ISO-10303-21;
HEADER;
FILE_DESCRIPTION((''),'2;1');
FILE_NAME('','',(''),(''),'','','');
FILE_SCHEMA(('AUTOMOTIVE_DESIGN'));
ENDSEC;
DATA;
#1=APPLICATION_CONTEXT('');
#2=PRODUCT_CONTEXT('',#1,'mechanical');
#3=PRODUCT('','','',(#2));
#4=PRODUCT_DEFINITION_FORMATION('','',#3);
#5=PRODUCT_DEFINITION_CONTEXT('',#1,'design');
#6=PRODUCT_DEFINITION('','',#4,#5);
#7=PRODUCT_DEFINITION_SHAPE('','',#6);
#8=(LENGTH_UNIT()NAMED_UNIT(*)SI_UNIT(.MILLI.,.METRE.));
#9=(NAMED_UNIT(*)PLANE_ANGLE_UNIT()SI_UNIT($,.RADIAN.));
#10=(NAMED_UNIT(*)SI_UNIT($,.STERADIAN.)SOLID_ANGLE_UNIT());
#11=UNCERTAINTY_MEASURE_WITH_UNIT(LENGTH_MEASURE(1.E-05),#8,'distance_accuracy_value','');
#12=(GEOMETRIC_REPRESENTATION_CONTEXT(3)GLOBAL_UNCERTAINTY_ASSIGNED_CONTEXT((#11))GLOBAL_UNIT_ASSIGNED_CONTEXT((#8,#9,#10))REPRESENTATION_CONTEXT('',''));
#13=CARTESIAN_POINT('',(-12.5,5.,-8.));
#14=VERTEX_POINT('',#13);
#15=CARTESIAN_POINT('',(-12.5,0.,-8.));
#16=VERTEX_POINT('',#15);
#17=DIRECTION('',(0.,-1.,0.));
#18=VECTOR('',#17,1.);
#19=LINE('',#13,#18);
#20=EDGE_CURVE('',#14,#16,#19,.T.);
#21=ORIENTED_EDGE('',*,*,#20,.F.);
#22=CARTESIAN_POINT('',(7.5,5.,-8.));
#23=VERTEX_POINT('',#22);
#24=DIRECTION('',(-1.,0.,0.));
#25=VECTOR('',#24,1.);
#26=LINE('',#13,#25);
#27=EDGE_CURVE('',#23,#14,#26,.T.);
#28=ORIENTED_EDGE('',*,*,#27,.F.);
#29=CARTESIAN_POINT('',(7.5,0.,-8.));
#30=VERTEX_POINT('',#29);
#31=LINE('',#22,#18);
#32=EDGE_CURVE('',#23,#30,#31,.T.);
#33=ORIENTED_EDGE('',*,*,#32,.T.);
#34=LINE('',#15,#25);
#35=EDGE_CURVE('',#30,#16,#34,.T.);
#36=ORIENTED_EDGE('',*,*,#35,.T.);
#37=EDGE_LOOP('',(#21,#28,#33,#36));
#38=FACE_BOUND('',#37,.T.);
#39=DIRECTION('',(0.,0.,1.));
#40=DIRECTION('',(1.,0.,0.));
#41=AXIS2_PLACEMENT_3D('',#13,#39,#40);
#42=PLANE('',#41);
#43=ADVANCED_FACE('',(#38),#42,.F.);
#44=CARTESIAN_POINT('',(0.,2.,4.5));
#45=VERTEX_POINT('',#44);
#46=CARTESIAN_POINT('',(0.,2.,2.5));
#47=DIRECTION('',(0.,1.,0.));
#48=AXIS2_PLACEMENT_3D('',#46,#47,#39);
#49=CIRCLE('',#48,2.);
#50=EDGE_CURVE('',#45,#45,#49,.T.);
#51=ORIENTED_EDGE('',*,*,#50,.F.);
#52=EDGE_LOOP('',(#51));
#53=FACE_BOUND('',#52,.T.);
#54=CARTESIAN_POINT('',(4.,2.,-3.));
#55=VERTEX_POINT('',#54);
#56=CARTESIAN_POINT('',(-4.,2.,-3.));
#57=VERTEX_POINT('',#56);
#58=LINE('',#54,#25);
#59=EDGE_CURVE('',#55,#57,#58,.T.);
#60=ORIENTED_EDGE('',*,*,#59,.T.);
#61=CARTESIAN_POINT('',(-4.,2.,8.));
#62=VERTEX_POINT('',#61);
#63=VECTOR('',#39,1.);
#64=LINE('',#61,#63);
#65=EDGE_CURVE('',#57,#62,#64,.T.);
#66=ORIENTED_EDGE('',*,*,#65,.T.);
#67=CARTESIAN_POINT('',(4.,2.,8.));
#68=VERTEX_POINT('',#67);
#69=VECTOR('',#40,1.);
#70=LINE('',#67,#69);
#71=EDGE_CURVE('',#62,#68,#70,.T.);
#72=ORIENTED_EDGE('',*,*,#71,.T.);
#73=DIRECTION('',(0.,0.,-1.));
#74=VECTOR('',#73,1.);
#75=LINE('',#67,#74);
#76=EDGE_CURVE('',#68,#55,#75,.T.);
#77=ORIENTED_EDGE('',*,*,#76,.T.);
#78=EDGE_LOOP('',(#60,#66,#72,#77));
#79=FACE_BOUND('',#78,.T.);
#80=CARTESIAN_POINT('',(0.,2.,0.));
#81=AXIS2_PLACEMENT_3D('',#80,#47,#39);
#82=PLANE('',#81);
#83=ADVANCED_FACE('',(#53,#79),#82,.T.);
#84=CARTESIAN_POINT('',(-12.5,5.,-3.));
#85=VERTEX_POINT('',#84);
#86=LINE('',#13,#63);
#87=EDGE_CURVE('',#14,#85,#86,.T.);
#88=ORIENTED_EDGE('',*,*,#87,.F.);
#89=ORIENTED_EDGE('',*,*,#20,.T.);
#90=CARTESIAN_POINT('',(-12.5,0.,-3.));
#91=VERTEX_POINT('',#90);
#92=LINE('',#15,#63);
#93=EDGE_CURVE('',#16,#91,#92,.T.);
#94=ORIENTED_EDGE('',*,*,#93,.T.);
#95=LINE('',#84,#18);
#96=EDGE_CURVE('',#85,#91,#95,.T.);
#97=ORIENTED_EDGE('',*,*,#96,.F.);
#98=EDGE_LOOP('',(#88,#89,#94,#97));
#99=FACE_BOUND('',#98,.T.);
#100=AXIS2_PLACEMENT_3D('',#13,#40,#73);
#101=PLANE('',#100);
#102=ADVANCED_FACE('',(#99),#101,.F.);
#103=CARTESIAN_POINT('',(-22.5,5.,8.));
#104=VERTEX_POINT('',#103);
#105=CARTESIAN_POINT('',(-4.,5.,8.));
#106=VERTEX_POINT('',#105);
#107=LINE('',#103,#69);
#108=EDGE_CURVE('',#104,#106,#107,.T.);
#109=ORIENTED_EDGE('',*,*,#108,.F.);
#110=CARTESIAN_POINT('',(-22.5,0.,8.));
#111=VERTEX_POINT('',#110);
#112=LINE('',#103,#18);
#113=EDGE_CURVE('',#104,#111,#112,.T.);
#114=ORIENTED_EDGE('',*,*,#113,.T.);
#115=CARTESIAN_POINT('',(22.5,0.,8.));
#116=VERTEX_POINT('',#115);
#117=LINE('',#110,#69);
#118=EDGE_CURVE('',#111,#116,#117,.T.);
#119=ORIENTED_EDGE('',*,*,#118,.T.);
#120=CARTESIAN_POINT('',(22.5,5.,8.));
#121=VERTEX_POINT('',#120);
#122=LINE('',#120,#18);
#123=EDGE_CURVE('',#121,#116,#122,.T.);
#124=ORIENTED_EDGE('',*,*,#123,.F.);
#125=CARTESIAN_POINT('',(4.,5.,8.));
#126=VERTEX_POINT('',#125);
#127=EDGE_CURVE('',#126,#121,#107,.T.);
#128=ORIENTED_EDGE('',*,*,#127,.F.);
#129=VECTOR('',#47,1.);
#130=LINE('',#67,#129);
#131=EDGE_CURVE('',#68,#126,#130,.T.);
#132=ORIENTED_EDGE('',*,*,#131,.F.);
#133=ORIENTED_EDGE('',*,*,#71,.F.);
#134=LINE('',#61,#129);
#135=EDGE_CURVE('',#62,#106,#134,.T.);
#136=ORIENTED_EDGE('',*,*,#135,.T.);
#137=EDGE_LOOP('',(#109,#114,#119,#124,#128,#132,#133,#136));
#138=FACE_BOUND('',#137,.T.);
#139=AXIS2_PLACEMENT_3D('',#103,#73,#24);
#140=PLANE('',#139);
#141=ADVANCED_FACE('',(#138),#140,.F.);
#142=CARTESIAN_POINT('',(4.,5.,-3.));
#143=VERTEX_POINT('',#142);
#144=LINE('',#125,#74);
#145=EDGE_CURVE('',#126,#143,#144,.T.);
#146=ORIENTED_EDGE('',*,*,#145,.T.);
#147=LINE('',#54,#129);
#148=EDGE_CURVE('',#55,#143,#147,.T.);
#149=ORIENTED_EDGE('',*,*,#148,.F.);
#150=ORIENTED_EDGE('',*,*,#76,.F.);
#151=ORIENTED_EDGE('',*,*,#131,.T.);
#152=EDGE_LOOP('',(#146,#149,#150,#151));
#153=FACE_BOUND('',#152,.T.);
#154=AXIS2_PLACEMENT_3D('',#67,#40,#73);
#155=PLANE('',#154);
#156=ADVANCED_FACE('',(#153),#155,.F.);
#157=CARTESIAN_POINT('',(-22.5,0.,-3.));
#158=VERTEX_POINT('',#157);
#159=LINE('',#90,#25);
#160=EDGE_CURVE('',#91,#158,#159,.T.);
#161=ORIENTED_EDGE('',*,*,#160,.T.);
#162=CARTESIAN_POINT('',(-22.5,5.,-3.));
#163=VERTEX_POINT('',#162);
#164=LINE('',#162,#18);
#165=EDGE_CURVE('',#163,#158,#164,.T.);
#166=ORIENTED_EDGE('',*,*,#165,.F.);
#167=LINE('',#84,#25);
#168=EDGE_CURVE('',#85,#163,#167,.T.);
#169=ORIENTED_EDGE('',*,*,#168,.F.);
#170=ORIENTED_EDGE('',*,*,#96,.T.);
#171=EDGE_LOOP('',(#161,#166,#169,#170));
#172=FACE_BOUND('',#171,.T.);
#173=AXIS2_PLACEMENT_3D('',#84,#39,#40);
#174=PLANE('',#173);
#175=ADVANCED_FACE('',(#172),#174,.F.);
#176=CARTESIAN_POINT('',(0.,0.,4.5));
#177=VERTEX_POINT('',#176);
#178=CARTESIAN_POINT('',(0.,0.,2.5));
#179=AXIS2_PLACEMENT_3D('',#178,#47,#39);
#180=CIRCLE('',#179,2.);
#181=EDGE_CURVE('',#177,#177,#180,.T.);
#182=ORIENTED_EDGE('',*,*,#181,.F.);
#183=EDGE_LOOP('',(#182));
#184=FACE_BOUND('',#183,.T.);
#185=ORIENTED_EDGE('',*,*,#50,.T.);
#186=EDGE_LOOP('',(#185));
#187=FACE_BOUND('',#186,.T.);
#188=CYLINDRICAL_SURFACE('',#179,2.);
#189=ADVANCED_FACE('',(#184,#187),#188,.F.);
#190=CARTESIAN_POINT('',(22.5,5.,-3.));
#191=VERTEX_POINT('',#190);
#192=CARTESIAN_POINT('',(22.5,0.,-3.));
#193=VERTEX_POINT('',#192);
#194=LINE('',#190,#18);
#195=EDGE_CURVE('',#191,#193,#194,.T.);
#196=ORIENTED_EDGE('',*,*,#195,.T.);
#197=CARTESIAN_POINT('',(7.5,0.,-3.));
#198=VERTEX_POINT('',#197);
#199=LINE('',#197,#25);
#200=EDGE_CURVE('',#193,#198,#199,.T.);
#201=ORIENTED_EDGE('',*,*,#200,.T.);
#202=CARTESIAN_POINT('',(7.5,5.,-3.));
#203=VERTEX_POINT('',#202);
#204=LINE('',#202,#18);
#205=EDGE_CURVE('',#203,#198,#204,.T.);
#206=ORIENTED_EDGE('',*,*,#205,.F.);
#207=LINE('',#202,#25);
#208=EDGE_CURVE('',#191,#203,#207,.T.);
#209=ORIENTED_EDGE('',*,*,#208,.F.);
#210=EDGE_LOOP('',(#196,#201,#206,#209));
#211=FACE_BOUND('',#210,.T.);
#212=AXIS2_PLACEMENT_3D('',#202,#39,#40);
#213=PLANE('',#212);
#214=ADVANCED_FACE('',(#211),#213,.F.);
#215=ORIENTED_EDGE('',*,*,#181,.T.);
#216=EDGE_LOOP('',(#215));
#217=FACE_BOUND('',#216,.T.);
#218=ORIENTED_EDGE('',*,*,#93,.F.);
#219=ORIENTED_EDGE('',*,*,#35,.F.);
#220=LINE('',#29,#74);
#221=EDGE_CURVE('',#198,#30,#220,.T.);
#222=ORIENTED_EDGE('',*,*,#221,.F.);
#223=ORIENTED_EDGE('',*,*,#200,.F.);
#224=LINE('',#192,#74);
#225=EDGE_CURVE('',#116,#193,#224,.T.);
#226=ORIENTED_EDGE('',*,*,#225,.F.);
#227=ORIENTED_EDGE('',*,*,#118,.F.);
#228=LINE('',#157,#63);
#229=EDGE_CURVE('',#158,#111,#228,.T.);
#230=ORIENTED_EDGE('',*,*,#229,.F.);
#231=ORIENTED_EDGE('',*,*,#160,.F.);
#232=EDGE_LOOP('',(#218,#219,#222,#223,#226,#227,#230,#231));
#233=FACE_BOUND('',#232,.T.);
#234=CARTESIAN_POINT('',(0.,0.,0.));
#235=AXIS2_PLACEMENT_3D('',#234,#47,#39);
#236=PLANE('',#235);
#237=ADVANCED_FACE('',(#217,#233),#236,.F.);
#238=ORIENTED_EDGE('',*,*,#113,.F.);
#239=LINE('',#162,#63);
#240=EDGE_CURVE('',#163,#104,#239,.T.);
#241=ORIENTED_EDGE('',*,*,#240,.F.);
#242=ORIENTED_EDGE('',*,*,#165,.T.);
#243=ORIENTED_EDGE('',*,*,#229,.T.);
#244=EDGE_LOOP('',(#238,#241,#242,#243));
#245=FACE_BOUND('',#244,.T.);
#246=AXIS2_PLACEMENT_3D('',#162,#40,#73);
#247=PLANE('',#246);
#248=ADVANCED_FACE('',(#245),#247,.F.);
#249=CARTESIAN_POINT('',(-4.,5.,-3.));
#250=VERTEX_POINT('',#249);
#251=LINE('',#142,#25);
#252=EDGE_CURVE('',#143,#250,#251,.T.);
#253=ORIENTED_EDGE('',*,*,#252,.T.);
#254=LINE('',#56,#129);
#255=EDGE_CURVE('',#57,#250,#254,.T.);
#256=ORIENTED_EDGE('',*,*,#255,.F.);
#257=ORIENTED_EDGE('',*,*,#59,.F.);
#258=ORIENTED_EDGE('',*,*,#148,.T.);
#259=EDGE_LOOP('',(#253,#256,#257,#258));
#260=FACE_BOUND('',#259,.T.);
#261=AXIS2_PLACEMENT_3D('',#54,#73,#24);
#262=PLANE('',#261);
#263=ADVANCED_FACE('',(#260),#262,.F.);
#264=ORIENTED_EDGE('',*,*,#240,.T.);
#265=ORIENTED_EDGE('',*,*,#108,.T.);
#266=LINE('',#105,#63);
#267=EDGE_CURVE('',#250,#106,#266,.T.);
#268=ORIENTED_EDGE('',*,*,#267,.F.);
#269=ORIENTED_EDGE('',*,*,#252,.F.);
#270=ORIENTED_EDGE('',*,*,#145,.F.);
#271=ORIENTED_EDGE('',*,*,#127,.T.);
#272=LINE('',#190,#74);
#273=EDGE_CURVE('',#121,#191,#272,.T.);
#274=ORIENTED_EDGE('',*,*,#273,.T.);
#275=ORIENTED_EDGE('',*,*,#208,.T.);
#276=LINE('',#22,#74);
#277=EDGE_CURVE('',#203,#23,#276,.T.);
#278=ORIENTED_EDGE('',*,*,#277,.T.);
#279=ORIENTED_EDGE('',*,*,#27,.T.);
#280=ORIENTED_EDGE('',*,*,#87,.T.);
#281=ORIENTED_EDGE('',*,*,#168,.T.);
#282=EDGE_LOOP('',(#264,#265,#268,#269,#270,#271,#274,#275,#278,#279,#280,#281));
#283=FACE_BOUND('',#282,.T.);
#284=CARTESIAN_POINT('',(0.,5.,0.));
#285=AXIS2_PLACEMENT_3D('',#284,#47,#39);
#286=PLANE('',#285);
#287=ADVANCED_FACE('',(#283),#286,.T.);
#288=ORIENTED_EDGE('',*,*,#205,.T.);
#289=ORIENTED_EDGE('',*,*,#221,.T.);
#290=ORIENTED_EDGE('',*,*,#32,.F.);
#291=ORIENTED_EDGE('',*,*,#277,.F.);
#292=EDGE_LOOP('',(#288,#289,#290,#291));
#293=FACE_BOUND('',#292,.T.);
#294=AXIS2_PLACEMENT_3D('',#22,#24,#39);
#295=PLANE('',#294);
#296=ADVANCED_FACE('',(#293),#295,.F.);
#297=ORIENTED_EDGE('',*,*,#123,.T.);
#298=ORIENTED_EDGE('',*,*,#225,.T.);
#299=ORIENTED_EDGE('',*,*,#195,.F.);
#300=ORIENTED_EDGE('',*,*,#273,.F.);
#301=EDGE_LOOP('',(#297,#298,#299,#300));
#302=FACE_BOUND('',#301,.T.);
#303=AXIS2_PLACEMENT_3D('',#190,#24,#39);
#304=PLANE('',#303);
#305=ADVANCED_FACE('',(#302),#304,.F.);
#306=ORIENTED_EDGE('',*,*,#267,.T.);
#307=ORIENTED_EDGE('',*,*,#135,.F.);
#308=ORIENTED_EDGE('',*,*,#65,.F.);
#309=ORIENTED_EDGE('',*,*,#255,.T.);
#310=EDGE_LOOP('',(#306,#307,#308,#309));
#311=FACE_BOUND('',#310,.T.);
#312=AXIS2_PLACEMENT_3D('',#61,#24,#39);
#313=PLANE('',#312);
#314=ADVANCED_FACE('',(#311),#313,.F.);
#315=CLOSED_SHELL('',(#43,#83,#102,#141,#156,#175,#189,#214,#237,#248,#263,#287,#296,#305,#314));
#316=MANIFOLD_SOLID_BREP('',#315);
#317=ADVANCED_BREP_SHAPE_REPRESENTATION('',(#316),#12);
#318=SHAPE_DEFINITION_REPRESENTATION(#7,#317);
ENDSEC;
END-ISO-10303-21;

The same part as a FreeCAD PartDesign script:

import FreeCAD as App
import Part
import Sketcher

V = App.Vector
Q = App.Units.Quantity


def add_polygon(sketch, points):
    """Adds a closed chain of lines whose ends are joined by coincident constraints."""
    first, n = sketch.GeometryCount, len(points)
    for a, b in zip(points, points[1:] + points[:1]):
        sketch.addGeometry(Part.LineSegment(App.Vector(*a, 0), App.Vector(*b, 0)), False)
    for i in range(n):
        sketch.addConstraint(Sketcher.Constraint("Coincident", first + i, 2, first + (i + 1) % n, 1))

doc = App.newDocument("Part")
body = doc.addObject("PartDesign::Body", "Body")

# Sketch on XZ plane
sketch1 = body.newObject("Sketcher::SketchObject", "Sketch")
sketch1.AttachmentSupport = (doc.getObject("XZ_Plane"), [""])
sketch1.MapMode = "FlatFace"
add_polygon(sketch1, [(8, -3), (8, -8), (-12, -8), (-12, -3), (-22, -3), (-22, 8), (22, 8), (22, -3)])  # lines 0-7
sketch1.addConstraint([
    Sketcher.Constraint("Vertical", 0),
    Sketcher.Constraint("Horizontal", 1),
    Sketcher.Constraint("Vertical", 2),
    Sketcher.Constraint("Horizontal", 3),
    Sketcher.Constraint("Vertical", 4),
    Sketcher.Constraint("Horizontal", 5),
    Sketcher.Constraint("Vertical", 6),
    Sketcher.Constraint("Horizontal", 7),
    Sketcher.Constraint("Symmetric", 3, 2, 6, 2, -2),
    Sketcher.Constraint("DistanceX", 1, 2, 1, 1, Q("20 mm")),
    Sketcher.Constraint("DistanceX", 3, 2, 3, 1, Q("10 mm")),
    Sketcher.Constraint("DistanceX", 5, 1, 5, 2, Q("45 mm")),
    Sketcher.Constraint("DistanceY", 0, 2, 0, 1, Q("5 mm")),
    Sketcher.Constraint("DistanceY", 4, 1, 4, 2, Q("11 mm")),
    Sketcher.Constraint("DistanceY", 0, 2, -1, 1, Q("8 mm")),
])
pad1 = body.newObject("PartDesign::Pad", "Pad")
pad1.Profile = sketch1
pad1.Length = 5
pad1.Reversed = True

# Sketch on XZ plane
sketch2 = body.newObject("Sketcher::SketchObject", "Sketch001")
sketch2.AttachmentSupport = (doc.getObject("XZ_Plane"), [""])
sketch2.MapMode = "FlatFace"
sketch2.AttachmentOffset = App.Placement(V(0, 0, -5), App.Rotation())
add_polygon(sketch2, [(-4, -3), (-4, 8), (4, 8), (4, -3)])  # lines 0-3
sketch2.addConstraint([
    Sketcher.Constraint("Vertical", 0),
    Sketcher.Constraint("Horizontal", 1),
    Sketcher.Constraint("Vertical", 2),
    Sketcher.Constraint("Horizontal", 3),
    Sketcher.Constraint("DistanceX", 1, 1, 1, 2, Q("8 mm")),
    Sketcher.Constraint("DistanceY", 0, 1, 0, 2, Q("11 mm")),
    Sketcher.Constraint("DistanceX", 0, 2, -1, 1, Q("4 mm")),
    Sketcher.Constraint("DistanceY", -1, 1, 0, 2, Q("8 mm")),
])
pocket1 = body.newObject("PartDesign::Pocket", "Pocket")
pocket1.Profile = sketch2
pocket1.Length = 3
pocket1.Reversed = True

# Sketch on XZ plane
sketch3 = body.newObject("Sketcher::SketchObject", "Sketch002")
sketch3.AttachmentSupport = (doc.getObject("XZ_Plane"), [""])
sketch3.MapMode = "FlatFace"
sketch3.AttachmentOffset = App.Placement(V(0, 0, -2), App.Rotation())
sketch3.addGeometry(Part.Circle(V(0, 2.5, 0), V(0, 0, 1), 2), False)
sketch3.addConstraint([
    Sketcher.Constraint("PointOnObject", 0, 3, -2),
    Sketcher.Constraint("Diameter", 0, Q("4 mm")),
    Sketcher.Constraint("DistanceY", -1, 1, 0, 3, Q("2.5 mm")),
])
pocket2 = body.newObject("PartDesign::Pocket", "Pocket001")
pocket2.Profile = sketch3
pocket2.Type = "ThroughAll"
pocket2.Reversed = True

doc.recompute()
